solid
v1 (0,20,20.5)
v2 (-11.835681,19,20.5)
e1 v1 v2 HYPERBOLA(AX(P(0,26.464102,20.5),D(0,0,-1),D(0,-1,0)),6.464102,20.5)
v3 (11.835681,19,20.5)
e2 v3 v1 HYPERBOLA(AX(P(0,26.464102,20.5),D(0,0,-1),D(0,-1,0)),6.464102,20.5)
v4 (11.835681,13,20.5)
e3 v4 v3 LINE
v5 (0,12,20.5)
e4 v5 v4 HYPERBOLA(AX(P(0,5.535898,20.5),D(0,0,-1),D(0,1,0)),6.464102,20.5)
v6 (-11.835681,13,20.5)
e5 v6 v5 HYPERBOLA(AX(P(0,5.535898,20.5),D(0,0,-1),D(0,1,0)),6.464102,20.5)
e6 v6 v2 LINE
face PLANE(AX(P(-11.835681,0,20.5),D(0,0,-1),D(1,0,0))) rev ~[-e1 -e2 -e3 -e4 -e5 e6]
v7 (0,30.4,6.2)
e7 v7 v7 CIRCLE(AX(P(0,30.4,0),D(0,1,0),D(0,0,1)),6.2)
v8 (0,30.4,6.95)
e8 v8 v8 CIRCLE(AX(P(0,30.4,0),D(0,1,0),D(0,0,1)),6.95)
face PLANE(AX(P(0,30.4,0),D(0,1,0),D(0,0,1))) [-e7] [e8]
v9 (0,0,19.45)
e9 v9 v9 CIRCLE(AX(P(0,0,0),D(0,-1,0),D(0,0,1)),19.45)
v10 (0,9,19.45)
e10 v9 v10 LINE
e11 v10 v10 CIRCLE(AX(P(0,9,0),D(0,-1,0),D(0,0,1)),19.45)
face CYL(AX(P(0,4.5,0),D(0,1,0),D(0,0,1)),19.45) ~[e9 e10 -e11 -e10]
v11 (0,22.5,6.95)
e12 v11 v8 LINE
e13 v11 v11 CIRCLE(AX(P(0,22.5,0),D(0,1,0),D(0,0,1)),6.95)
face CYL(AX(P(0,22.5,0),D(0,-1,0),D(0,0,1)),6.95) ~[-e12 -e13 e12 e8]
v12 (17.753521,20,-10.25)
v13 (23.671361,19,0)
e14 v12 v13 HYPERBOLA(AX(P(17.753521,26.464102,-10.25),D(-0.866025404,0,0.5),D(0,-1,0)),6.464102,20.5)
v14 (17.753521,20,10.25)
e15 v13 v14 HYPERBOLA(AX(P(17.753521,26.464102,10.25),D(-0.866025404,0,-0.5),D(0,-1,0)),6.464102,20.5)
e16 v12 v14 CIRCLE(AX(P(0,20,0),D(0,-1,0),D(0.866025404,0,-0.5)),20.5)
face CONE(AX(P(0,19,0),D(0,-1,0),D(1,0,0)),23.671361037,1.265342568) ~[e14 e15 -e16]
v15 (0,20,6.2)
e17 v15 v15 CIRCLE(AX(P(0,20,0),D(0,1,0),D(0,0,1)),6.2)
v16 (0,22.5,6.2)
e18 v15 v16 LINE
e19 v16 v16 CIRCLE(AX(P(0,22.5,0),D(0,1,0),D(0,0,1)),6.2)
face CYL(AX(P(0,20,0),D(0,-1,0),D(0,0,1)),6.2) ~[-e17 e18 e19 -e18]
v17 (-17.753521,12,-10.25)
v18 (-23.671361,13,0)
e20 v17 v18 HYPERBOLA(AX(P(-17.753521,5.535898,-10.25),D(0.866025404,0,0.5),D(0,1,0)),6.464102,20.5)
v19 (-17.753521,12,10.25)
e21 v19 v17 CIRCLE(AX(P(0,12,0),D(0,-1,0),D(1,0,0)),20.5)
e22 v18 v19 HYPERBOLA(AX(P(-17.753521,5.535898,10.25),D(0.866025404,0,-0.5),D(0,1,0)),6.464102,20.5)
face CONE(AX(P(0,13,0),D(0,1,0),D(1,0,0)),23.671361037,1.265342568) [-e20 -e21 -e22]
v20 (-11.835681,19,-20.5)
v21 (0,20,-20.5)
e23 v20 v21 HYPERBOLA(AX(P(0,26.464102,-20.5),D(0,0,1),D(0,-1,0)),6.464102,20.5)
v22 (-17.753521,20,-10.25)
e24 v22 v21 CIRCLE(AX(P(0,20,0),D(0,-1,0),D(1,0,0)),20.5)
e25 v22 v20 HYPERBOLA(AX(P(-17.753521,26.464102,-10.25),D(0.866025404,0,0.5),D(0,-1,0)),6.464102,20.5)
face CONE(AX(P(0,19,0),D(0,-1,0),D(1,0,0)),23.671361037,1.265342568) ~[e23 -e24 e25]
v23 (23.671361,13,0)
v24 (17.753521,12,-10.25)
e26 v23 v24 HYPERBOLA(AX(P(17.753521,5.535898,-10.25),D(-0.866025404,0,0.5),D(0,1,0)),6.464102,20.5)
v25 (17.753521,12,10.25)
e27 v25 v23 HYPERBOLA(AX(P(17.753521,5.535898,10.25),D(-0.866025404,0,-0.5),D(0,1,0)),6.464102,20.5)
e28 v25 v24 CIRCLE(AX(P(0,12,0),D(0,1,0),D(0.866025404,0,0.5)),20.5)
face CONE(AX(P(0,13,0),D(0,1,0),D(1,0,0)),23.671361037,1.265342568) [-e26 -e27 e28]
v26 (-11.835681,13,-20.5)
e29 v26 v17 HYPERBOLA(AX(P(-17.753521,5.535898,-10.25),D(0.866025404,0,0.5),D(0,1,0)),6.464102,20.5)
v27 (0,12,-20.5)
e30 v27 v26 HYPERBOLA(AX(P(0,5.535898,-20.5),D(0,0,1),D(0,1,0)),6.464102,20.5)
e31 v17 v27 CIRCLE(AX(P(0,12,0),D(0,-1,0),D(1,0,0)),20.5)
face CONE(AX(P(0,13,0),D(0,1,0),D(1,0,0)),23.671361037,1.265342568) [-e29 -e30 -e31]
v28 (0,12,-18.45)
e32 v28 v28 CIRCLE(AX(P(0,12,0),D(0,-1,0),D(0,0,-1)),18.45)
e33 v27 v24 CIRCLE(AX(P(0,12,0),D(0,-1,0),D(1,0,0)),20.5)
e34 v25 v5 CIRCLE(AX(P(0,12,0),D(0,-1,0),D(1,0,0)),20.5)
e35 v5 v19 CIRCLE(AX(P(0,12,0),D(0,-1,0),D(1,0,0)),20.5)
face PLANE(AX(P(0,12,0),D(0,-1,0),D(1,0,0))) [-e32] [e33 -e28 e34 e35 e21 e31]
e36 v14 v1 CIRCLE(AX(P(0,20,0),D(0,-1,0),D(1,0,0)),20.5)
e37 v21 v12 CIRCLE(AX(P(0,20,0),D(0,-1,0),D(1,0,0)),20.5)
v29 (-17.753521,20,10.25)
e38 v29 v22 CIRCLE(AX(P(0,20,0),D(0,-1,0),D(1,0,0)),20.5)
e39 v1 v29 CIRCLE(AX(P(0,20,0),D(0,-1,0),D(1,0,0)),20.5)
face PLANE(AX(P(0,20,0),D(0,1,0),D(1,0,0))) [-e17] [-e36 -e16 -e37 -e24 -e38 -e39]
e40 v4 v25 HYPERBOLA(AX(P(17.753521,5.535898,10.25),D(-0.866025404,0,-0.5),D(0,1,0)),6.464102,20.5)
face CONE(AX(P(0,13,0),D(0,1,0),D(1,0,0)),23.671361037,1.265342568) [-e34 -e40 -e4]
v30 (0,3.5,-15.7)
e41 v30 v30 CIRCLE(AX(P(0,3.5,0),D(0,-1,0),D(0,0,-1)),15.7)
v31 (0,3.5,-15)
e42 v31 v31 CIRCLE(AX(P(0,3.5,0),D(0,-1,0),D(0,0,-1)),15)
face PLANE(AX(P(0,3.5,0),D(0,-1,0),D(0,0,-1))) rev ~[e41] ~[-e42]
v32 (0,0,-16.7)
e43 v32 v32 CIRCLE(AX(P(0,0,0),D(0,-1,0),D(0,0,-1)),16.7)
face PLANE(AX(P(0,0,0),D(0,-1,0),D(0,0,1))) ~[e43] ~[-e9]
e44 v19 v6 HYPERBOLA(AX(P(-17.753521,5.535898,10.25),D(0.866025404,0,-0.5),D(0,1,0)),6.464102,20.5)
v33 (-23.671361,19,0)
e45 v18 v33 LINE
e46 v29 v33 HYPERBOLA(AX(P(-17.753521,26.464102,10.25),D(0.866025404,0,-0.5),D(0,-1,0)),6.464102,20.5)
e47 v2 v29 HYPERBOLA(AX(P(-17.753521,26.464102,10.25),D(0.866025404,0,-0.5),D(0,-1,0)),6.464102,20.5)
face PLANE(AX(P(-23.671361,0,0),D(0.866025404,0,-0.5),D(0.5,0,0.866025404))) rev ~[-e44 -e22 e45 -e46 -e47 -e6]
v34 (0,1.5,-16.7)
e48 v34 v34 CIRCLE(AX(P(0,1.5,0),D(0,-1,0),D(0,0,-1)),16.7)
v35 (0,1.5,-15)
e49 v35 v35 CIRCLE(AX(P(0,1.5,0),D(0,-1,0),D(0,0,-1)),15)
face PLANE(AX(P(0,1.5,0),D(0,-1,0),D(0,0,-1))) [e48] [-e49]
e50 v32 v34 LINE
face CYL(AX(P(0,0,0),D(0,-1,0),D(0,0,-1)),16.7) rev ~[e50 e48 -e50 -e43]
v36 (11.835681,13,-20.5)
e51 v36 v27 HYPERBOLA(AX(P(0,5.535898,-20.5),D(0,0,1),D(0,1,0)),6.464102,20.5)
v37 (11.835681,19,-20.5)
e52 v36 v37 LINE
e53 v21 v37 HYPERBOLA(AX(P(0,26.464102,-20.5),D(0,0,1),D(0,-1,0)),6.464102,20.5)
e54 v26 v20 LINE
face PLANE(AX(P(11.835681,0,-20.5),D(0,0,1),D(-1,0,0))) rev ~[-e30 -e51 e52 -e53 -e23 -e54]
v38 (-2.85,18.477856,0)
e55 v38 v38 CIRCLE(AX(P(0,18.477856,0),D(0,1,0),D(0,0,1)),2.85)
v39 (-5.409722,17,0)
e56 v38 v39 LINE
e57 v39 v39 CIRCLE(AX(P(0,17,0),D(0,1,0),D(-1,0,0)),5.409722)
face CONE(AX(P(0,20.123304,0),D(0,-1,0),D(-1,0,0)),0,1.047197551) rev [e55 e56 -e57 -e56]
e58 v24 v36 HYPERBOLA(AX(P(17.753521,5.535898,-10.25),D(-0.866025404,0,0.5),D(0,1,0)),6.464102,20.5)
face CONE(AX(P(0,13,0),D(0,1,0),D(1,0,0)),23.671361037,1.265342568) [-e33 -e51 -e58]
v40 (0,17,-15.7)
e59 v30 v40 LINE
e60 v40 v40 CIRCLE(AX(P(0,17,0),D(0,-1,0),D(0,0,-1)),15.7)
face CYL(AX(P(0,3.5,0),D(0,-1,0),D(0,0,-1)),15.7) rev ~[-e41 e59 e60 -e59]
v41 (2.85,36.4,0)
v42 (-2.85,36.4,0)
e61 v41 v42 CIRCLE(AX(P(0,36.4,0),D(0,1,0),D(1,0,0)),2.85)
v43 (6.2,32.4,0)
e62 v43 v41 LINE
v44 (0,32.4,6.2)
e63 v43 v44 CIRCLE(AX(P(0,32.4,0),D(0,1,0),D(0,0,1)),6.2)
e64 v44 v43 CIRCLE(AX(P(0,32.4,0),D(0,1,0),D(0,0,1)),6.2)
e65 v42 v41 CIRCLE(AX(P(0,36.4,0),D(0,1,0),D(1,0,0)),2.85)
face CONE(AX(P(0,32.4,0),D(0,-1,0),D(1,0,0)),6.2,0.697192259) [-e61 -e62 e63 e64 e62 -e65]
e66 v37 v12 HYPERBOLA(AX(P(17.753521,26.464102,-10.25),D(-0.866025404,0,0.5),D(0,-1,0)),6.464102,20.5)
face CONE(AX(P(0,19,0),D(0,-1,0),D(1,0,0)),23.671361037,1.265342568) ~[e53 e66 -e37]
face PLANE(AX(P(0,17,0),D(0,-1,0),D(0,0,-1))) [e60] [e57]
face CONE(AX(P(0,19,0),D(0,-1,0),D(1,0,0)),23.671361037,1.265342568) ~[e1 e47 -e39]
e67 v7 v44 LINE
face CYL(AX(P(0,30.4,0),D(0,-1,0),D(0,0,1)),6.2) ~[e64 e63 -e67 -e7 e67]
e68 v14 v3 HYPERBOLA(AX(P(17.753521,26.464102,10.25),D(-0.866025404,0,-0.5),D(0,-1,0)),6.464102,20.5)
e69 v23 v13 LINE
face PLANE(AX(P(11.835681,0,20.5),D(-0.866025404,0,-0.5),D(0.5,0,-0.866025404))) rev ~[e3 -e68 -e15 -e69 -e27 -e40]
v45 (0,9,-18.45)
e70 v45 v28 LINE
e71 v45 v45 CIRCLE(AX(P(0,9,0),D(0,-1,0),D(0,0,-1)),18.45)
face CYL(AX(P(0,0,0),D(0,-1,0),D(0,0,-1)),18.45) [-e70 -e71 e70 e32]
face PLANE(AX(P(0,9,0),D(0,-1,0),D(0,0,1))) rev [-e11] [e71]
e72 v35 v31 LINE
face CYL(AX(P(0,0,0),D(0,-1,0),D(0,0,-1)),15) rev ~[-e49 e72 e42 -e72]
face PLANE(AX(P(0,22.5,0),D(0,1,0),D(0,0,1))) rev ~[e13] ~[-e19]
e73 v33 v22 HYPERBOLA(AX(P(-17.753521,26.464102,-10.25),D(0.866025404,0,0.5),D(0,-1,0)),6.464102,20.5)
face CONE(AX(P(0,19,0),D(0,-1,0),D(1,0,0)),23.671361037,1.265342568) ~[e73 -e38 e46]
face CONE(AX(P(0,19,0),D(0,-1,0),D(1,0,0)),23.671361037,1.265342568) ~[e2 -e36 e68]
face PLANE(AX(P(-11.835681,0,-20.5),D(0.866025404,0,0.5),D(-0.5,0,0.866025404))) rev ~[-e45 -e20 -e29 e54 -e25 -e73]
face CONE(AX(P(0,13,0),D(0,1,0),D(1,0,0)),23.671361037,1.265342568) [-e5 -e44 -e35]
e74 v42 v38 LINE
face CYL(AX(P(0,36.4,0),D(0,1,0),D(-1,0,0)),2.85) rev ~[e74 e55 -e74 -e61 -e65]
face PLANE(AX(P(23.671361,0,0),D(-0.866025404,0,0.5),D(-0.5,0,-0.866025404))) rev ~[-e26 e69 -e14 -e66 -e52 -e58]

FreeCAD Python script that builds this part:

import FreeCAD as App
import Part
import Sketcher
from FreeCAD import Vector
Q = App.Units.Quantity


def add_polygon(sketch, points):
    """Adds a closed chain of lines whose ends are joined by coincident constraints."""
    first, n = sketch.GeometryCount, len(points)
    for a, b in zip(points, points[1:] + points[:1]):
        sketch.addGeometry(Part.LineSegment(App.Vector(*a, 0), App.Vector(*b, 0)), False)
    for i in range(n):
        sketch.addConstraint(Sketcher.Constraint("Coincident", first + i, 2, first + (i + 1) % n, 1))

doc = App.newDocument("Part")
body = doc.addObject("PartDesign::Body", "Body")

# Sketch on XZ plane
sketch1 = body.newObject("Sketcher::SketchObject", "Sketch")
sketch1.AttachmentSupport = (doc.getObject("XZ_Plane"), [""])
sketch1.MapMode = "FlatFace"
add_polygon(sketch1, [(12, 20), (24, 0), (12, -20), (-12, -20), (-24, 0), (-12, 20)])  # lines 0-5
sketch1.addConstraint([
    Sketcher.Constraint("Horizontal", 2),
    Sketcher.Constraint("Horizontal", 5),
    Sketcher.Constraint("Symmetric", 0, 2, 3, 2, -1, 1),
    Sketcher.Constraint("Symmetric", 1, 2, 4, 2, -1, 1),
    Sketcher.Constraint("PointOnObject", 0, 2, -1),
    Sketcher.Constraint("Parallel", 0, 3),
    Sketcher.Constraint("Vertical", 2, 2, 4, 2),
    Sketcher.Constraint("Angle", 0, Q("-60 deg")),
    Sketcher.Constraint("DistanceY", 2, 2, 4, 2, 41.0),
    Sketcher.Constraint("DistanceX", 2, 2, 2, 1, 23.671361),
])
pad1 = body.newObject("PartDesign::Pad", "Pad")
pad1.Profile = sketch1
pad1.Length = 20
pad1.Reversed = True

# Sketch on XZ plane
sketch2 = body.newObject("Sketcher::SketchObject", "Sketch001")
sketch2.AttachmentSupport = (doc.getObject("XZ_Plane"), [""])
sketch2.MapMode = "FlatFace"
add_polygon(sketch2, [(-31, 28), (-31, -28), (31, -28), (31, 28)])  # lines 0-3
sketch2.addGeometry(Part.Circle(Vector(0, 0, 0), Vector(0, 0, 1), 18), False)  # 4
sketch2.addConstraint([
    Sketcher.Constraint("Vertical", 0),
    Sketcher.Constraint("Horizontal", 1),
    Sketcher.Constraint("Vertical", 2),
    Sketcher.Constraint("Horizontal", 3),
    Sketcher.Constraint("Coincident", 4, 3, -1, 1),
    Sketcher.Constraint("Symmetric", 0, 2, 2, 2, -1, 1),
    Sketcher.Constraint("Diameter", 4, 36.9),
    Sketcher.Constraint("DistanceX", 1, 1, 1, 2, 62.49),
    Sketcher.Constraint("DistanceY", 0, 2, 0, 1, 56.148),
])
pocket1 = body.newObject("PartDesign::Pocket", "Pocket")
pocket1.Profile = sketch2
pocket1.Length = 12

# Sketch on XY plane
sketch3 = body.newObject("Sketcher::SketchObject", "Sketch002")
sketch3.AttachmentSupport = (doc.getObject("XY_Plane"), [""])
sketch3.MapMode = "FlatFace"
add_polygon(sketch3, [(23.7, 19), (23.7, 20), (20.5, 20)])  # lines 0-2
sketch3.addConstraint([
    Sketcher.Constraint("Vertical", 0),
    Sketcher.Constraint("Horizontal", 1),
    Sketcher.Constraint("DistanceY", 0, 1, 0, 2, 1.0),
    Sketcher.Constraint("DistanceY", -1, 1, 0, 2, 20.0),
    Sketcher.Constraint("DistanceX", -1, 1, 1, 2, 20.5),
    Sketcher.Constraint("DistanceX", 1, 2, 1, 1, 3.171361),
])
groove = body.newObject("PartDesign::Groove", "Groove")
groove.Profile = sketch3
groove.ReferenceAxis = (sketch3, ["V_Axis"])
groove.Angle = 360
doc.recompute()

datumplane = body.newObject("PartDesign::Plane", "DatumPlane")
datumplane.AttachmentSupport = (doc.getObject("XZ_Plane"), [""])
datumplane.MapMode = "FlatFace"
datumplane.AttachmentOffset = App.Placement(Vector(0, 0, -16), App.Rotation())
mirrored = body.newObject("PartDesign::Mirrored", "Mirrored")
mirrored.Originals = [groove]
mirrored.MirrorPlane = (datumplane, [""])
body.Tip = mirrored

# Sketch on XZ plane
sketch4 = body.newObject("Sketcher::SketchObject", "Sketch003")
sketch4.AttachmentSupport = (doc.getObject("XZ_Plane"), [""])
sketch4.MapMode = "FlatFace"
sketch4.addGeometry(Part.Circle(Vector(0, 0, 0), Vector(0, 0, 1), 17), False)
sketch4.addConstraint([
    Sketcher.Constraint("Coincident", 0, 3, -1, 1),
    Sketcher.Constraint("Diameter", 0, 33.4),
])
pocket2 = body.newObject("PartDesign::Pocket", "Pocket001")
pocket2.Profile = sketch4
pocket2.Length = 1.5

# Sketch on XZ plane
sketch5 = body.newObject("Sketcher::SketchObject", "Sketch004")
sketch5.AttachmentSupport = (doc.getObject("XZ_Plane"), [""])
sketch5.MapMode = "FlatFace"
sketch5.addGeometry(Part.Circle(Vector(0, 0, 0), Vector(0, 0, 1), 15), False)
sketch5.addConstraint([
    Sketcher.Constraint("Coincident", 0, 3, -1, 1),
    Sketcher.Constraint("Diameter", 0, 30.0),
])
pocket3 = body.newObject("PartDesign::Pocket", "Pocket002")
pocket3.Profile = sketch5
pocket3.Length = 17

# Sketch on XZ plane
sketch6 = body.newObject("Sketcher::SketchObject", "Sketch005")
sketch6.AttachmentSupport = (doc.getObject("XZ_Plane"), [""])
sketch6.MapMode = "FlatFace"
sketch6.AttachmentOffset = App.Placement(Vector(0, 0, -3.5), App.Rotation())
sketch6.addGeometry(Part.Circle(Vector(0, 0, 0), Vector(0, 0, 1), 16), False)
sketch6.addConstraint([
    Sketcher.Constraint("Coincident", 0, 3, -1, 1),
    Sketcher.Constraint("Diameter", 0, 31.4),
])
pocket4 = body.newObject("PartDesign::Pocket", "Pocket003")
pocket4.Profile = sketch6
pocket4.Length = 13.5

# Sketch on XY plane
sketch7 = body.newObject("Sketcher::SketchObject", "Sketch006")
sketch7.AttachmentSupport = (doc.getObject("XY_Plane"), [""])
sketch7.MapMode = "FlatFace"
add_polygon(sketch7, [(18.4, 9), (18.4, 0), (19.4, 0), (19.4, 9)])  # lines 0-3
sketch7.addConstraint([
    Sketcher.Constraint("Vertical", 0),
    Sketcher.Constraint("Horizontal", 1),
    Sketcher.Constraint("Vertical", 2),
    Sketcher.Constraint("Horizontal", 3),
    Sketcher.Constraint("PointOnObject", 0, 2, -1),
    Sketcher.Constraint("DistanceX", 1, 1, 1, 2, 1.0),
    Sketcher.Constraint("DistanceY", 0, 2, 0, 1, 9.0),
    Sketcher.Constraint("DistanceX", -1, 1, 0, 2, 18.45),
])
revolution = body.newObject("PartDesign::Revolution", "Revolution")
revolution.Profile = sketch7
revolution.ReferenceAxis = (sketch7, ["V_Axis"])
revolution.Angle = 360

# Sketch on XZ plane
sketch8 = body.newObject("Sketcher::SketchObject", "Sketch007")
sketch8.AttachmentSupport = (doc.getObject("XZ_Plane"), [""])
sketch8.MapMode = "FlatFace"
sketch8.AttachmentOffset = App.Placement(Vector(0, 0, -20), App.Rotation())
sketch8.addGeometry(Part.Circle(Vector(0, 0, 0), Vector(0, 0, 1), 6), False)
sketch8.addConstraint([
    Sketcher.Constraint("Coincident", 0, 3, -1, 1),
    Sketcher.Constraint("Diameter", 0, 12.4),
])
pad2 = body.newObject("PartDesign::Pad", "Pad001")
pad2.Profile = sketch8
pad2.Length = 2.5
pad2.Reversed = True

# Sketch on XZ plane
sketch9 = body.newObject("Sketcher::SketchObject", "Sketch008")
sketch9.AttachmentSupport = (doc.getObject("XZ_Plane"), [""])
sketch9.MapMode = "FlatFace"
sketch9.AttachmentOffset = App.Placement(Vector(0, 0, -22.5), App.Rotation())
sketch9.addGeometry(Part.Circle(Vector(0, 0, 0), Vector(0, 0, 1), 7), False)
sketch9.addConstraint([
    Sketcher.Constraint("Coincident", 0, 3, -1, 1),
    Sketcher.Constraint("Diameter", 0, 13.9),
])
pad3 = body.newObject("PartDesign::Pad", "Pad002")
pad3.Profile = sketch9
pad3.Length = 7.9
pad3.Reversed = True

# Sketch on XZ plane
sketch10 = body.newObject("Sketcher::SketchObject", "Sketch009")
sketch10.AttachmentSupport = (doc.getObject("XZ_Plane"), [""])
sketch10.MapMode = "FlatFace"
sketch10.AttachmentOffset = App.Placement(Vector(0, 0, -30.4), App.Rotation())
sketch10.addGeometry(Part.Circle(Vector(0, 0, 0), Vector(0, 0, 1), 6), False)
sketch10.addConstraint([
    Sketcher.Constraint("Coincident", 0, 3, -1, 1),
    Sketcher.Constraint("Diameter", 0, 12.4),
])
pad4 = body.newObject("PartDesign::Pad", "Pad003")
pad4.Profile = sketch10
pad4.Length = 2
pad4.Reversed = True

# Sketch on XY plane
sketch11 = body.newObject("Sketcher::SketchObject", "Sketch010")
sketch11.AttachmentSupport = (doc.getObject("XY_Plane"), [""])
sketch11.MapMode = "FlatFace"
add_polygon(sketch11, [(6.2, 32.4), (2.9, 36.4), (0, 36.4), (0, 32.4)])  # lines 0-3
sketch11.addConstraint([
    Sketcher.Constraint("Horizontal", 1),
    Sketcher.Constraint("Vertical", 2),
    Sketcher.Constraint("Horizontal", 3),
    Sketcher.Constraint("PointOnObject", 1, 2, -2),
    Sketcher.Constraint("DistanceY", 2, 2, 2, 1, 4.0),
    Sketcher.Constraint("DistanceX", 3, 1, 3, 2, 6.2),
    Sketcher.Constraint("DistanceX", 1, 2, 1, 1, 2.85),
    Sketcher.Constraint("DistanceY", -1, 1, 0, 2, 36.4),
])
revolution2 = body.newObject("PartDesign::Revolution", "Revolution001")
revolution2.Profile = sketch11
revolution2.ReferenceAxis = (sketch11, ["V_Axis"])
revolution2.Angle = 360

# Sketch on XZ plane
sketch12 = body.newObject("Sketcher::SketchObject", "Sketch011")
sketch12.AttachmentSupport = (doc.getObject("XZ_Plane"), [""])
sketch12.MapMode = "FlatFace"
sketch12.AttachmentOffset = App.Placement(Vector(0, 0, -36.4), App.Rotation())
sketch12.addGeometry(Part.Circle(Vector(0, 0, 0), Vector(0, 0, 1), 2.9), False)
sketch12.addConstraint([
    Sketcher.Constraint("Coincident", 0, 3, -1, 1),
    Sketcher.Constraint("Diameter", 0, 5.7),
])
pocket5 = body.newObject("PartDesign::Pocket", "Pocket004")
pocket5.Profile = sketch12
pocket5.Type = "ThroughAll"
pocket5.Reversed = True

# Sketch on XY plane
sketch13 = body.newObject("Sketcher::SketchObject", "Sketch012")
sketch13.AttachmentSupport = (doc.getObject("XY_Plane"), [""])
sketch13.MapMode = "FlatFace"
add_polygon(sketch13, [(5.4, 17), (0, 20.1), (0, 17)])  # lines 0-2
sketch13.addConstraint([
    Sketcher.Constraint("Vertical", 1),
    Sketcher.Constraint("Horizontal", 2),
    Sketcher.Constraint("PointOnObject", 0, 2, -2),
    Sketcher.Constraint("Angle", 0, Q("150 deg")),
    Sketcher.Constraint("DistanceY", -1, 1, 1, 2, 17.0),
    Sketcher.Constraint("DistanceX", 2, 1, 2, 2, 5.409722),
])
groove2 = body.newObject("PartDesign::Groove", "Groove001")
groove2.Profile = sketch13
groove2.ReferenceAxis = (sketch13, ["V_Axis"])
groove2.Angle = 360

doc.recompute()
